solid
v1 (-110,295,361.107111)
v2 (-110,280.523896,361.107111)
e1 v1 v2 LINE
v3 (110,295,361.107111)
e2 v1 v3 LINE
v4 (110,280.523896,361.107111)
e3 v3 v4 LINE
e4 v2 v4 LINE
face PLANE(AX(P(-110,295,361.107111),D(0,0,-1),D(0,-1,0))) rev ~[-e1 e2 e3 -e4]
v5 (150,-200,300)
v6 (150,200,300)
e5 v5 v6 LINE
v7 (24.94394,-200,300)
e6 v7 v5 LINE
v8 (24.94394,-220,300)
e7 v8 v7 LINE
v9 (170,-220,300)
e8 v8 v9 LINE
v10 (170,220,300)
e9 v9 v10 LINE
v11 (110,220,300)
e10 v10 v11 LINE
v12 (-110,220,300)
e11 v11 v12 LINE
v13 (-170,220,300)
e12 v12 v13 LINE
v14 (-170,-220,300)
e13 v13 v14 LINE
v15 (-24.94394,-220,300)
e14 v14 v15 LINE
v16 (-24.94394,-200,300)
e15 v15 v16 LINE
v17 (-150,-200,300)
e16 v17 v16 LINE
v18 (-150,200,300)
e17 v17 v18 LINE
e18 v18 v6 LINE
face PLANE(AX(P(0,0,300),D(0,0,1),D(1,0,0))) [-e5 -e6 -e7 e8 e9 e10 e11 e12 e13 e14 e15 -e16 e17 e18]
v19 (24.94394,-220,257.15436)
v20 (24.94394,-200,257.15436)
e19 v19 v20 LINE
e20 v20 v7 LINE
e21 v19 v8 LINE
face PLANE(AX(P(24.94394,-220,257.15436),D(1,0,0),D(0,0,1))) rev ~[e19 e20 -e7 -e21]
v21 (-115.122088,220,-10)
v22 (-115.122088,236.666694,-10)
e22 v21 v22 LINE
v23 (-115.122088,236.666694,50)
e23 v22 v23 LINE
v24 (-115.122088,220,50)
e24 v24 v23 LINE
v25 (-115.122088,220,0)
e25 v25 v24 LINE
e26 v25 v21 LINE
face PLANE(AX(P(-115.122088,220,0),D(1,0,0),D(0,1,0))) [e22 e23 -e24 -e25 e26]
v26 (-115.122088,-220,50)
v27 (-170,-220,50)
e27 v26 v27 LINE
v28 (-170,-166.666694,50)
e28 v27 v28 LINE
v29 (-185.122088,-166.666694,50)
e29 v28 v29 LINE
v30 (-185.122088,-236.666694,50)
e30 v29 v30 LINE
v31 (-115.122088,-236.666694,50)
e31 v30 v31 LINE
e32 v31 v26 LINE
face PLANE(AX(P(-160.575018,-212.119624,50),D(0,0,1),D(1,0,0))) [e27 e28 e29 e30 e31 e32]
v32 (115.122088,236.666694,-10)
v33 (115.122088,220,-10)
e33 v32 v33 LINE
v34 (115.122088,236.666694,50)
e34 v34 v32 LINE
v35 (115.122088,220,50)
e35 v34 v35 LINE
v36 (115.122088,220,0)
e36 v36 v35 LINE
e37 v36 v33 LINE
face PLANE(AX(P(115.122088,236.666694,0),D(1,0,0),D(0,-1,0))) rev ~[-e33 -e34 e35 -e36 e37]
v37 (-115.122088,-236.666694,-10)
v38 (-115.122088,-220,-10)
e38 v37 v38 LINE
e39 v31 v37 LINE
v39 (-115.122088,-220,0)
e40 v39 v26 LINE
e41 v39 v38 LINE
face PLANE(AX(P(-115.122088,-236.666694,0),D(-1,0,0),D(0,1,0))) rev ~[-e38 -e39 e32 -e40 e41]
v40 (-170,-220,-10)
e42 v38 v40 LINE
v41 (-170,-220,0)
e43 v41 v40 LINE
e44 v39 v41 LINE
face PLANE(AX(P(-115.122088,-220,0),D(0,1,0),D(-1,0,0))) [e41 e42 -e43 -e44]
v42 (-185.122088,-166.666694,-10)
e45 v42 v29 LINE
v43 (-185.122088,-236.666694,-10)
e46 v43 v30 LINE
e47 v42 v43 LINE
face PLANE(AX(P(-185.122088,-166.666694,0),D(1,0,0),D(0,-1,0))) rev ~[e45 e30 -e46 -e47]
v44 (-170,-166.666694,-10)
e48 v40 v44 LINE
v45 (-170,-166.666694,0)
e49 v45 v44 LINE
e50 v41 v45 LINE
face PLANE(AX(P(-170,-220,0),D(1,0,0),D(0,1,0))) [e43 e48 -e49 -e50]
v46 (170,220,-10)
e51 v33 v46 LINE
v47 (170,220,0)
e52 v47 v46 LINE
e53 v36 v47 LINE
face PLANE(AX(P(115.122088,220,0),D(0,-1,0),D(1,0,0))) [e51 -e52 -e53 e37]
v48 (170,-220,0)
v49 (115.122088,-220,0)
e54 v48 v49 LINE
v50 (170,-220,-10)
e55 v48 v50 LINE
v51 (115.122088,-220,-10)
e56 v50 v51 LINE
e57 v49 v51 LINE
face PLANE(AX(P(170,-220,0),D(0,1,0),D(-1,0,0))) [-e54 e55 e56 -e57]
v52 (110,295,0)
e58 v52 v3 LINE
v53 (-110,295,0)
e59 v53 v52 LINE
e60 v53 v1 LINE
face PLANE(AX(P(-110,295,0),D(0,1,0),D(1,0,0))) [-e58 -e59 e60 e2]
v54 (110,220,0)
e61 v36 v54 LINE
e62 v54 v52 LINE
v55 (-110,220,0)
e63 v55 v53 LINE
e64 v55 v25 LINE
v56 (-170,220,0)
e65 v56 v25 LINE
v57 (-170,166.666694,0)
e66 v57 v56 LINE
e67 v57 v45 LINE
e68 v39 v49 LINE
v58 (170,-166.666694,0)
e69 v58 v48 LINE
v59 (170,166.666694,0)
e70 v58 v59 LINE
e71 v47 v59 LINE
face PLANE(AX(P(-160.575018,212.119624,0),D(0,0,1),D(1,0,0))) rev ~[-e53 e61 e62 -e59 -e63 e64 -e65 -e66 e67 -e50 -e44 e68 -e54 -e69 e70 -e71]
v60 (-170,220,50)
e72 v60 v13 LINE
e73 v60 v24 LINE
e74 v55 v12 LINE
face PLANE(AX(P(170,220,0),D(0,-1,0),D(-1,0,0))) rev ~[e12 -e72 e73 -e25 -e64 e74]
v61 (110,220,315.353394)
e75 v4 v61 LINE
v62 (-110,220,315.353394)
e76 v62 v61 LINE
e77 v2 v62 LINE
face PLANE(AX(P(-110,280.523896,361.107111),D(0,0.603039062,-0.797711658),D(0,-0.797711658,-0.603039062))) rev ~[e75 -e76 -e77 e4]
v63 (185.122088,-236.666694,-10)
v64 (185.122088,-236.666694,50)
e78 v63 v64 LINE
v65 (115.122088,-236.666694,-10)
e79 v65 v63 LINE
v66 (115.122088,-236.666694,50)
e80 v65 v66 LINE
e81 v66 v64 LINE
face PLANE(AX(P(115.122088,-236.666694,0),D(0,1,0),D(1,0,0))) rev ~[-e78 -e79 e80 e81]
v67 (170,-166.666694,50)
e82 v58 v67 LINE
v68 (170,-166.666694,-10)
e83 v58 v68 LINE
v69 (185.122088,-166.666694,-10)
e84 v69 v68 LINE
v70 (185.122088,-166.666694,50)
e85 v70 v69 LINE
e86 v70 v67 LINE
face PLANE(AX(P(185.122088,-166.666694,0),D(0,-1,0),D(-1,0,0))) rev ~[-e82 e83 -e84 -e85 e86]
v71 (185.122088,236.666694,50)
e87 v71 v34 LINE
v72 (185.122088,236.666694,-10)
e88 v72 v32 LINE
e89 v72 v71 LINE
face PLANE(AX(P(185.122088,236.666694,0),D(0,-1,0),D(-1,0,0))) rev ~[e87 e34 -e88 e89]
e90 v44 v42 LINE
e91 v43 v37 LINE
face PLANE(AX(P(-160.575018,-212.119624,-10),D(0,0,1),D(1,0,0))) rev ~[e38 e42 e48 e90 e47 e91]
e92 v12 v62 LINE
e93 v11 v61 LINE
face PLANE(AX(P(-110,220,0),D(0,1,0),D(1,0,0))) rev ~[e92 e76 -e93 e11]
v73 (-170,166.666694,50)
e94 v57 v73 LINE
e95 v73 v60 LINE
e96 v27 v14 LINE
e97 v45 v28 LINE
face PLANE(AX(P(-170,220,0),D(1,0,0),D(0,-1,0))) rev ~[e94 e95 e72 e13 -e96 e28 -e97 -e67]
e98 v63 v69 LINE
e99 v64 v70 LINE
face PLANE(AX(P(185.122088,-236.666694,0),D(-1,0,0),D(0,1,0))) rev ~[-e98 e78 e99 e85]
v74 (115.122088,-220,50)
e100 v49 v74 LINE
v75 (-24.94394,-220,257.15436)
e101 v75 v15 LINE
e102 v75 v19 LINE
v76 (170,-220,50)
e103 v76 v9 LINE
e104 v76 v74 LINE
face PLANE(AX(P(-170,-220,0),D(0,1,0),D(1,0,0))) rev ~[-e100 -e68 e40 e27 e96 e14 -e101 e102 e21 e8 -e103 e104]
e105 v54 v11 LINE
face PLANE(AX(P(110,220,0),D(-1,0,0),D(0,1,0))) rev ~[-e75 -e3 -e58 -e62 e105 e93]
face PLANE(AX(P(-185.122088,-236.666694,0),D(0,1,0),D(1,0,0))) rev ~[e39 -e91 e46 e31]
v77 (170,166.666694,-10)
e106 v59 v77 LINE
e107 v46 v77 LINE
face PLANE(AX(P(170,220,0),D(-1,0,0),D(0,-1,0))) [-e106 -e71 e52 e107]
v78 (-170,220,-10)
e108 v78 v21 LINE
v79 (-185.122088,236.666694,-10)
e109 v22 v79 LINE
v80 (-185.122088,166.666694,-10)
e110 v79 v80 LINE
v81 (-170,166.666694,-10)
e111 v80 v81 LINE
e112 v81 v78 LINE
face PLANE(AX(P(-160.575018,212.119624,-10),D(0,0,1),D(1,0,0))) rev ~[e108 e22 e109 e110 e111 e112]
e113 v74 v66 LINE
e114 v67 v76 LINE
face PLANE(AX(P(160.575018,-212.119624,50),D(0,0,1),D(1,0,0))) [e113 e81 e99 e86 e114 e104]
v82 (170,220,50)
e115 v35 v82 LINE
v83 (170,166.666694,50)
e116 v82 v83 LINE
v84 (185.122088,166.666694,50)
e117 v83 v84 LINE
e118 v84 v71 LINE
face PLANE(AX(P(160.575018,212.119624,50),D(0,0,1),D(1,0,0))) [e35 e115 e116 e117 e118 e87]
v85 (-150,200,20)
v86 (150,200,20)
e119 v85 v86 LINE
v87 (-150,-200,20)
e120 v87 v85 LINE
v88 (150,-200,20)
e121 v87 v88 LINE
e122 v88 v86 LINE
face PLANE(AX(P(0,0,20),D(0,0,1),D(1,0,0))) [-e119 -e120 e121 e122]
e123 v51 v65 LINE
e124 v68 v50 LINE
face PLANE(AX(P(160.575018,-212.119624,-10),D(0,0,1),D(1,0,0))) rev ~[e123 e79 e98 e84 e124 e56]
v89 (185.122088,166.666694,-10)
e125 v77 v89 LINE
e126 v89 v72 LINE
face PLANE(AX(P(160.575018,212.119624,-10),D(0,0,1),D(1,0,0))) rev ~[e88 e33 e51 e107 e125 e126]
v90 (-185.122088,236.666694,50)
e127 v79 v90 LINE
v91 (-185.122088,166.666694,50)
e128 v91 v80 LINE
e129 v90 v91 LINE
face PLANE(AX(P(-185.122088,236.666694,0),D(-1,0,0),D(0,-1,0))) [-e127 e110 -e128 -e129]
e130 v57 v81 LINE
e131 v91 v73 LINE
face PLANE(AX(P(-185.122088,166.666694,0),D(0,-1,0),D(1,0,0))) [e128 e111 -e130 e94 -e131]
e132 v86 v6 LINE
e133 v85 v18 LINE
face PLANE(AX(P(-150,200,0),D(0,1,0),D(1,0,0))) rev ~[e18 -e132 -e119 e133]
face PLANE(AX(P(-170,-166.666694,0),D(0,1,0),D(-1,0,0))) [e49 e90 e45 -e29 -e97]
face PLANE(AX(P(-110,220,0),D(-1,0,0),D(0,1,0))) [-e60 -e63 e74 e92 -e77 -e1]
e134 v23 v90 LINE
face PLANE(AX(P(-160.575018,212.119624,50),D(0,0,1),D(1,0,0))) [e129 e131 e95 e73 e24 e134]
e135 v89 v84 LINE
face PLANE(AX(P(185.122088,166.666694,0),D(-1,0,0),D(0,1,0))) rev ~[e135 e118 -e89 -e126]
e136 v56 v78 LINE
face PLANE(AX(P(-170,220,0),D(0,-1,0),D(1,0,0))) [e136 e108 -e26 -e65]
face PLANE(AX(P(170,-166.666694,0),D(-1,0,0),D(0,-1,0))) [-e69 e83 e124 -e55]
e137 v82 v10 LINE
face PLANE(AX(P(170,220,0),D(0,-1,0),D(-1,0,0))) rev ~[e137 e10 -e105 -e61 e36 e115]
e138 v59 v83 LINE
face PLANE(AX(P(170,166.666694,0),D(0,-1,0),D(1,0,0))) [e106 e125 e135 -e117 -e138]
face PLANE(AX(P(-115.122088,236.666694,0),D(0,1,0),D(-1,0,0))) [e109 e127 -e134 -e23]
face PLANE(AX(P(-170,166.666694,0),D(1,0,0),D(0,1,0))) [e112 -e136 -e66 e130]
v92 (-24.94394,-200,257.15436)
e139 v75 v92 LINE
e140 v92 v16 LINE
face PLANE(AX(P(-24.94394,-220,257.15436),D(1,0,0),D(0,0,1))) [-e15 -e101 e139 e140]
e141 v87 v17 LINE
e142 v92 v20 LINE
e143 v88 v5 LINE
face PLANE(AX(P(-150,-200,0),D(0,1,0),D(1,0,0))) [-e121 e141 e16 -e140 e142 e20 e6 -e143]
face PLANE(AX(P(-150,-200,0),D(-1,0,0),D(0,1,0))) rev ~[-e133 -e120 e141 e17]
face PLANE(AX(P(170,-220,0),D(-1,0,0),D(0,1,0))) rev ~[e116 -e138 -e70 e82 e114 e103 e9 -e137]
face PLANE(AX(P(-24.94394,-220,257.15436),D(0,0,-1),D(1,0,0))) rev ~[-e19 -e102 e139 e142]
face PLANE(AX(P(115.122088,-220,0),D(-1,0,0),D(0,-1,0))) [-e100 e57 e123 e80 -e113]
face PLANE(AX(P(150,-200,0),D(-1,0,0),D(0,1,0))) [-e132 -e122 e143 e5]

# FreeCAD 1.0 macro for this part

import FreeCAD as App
import Part
import Sketcher

V = App.Vector
Q = App.Units.Quantity


def add_polygon(sketch, points):
    """Adds a closed chain of lines whose ends are joined by coincident constraints."""
    first, n = sketch.GeometryCount, len(points)
    for a, b in zip(points, points[1:] + points[:1]):
        sketch.addGeometry(Part.LineSegment(App.Vector(*a, 0), App.Vector(*b, 0)), False)
    for i in range(n):
        sketch.addConstraint(Sketcher.Constraint("Coincident", first + i, 2, first + (i + 1) % n, 1))

doc = App.newDocument("Part")
body = doc.addObject("PartDesign::Body", "Body")

sketch1 = body.newObject("Sketcher::SketchObject", "Sketch")
sketch1.AttachmentSupport = (doc.getObject("XY_Plane"), [""])
sketch1.MapMode = "FlatFace"
add_polygon(sketch1, [(170, 220), (-170, 220), (-170, -220), (170, -220)])
add_polygon(sketch1, [(150, -200), (-150, -200), (-150, 200), (150, 200)])
sketch1.addConstraint([
    Sketcher.Constraint("Horizontal", 0),
    Sketcher.Constraint("Vertical", 1),
    Sketcher.Constraint("Horizontal", 2),
    Sketcher.Constraint("Vertical", 3),
    Sketcher.Constraint("Horizontal", 4),
    Sketcher.Constraint("Vertical", 5),
    Sketcher.Constraint("Horizontal", 6),
    Sketcher.Constraint("Vertical", 7),
    Sketcher.Constraint("Symmetric", 0, 2, 2, 2, -1, 1),
    Sketcher.Constraint("Symmetric", 4, 2, 6, 2, -1, 1),
    Sketcher.Constraint("DistanceX", 0, 2, 0, 1, Q("340 mm")),
    Sketcher.Constraint("DistanceX", 4, 2, 4, 1, Q("300 mm")),
    Sketcher.Constraint("DistanceY", 1, 2, 1, 1, Q("440 mm")),
    Sketcher.Constraint("DistanceY", 5, 1, 5, 2, Q("400 mm")),
])
pad1 = body.newObject("PartDesign::Pad", "Pad")
pad1.Profile = sketch1
pad1.Length = 300

sketch2 = body.newObject("Sketcher::SketchObject", "Sketch001")
sketch2.AttachmentSupport = (doc.getObject("XY_Plane"), [""])
sketch2.MapMode = "FlatFace"
add_polygon(sketch2, [(-110, 295), (-110, 220), (110, 220), (110, 295)])
sketch2.addConstraint([
    Sketcher.Constraint("Vertical", 0),
    Sketcher.Constraint("Horizontal", 1),
    Sketcher.Constraint("Vertical", 2),
    Sketcher.Constraint("Horizontal", 3),
    Sketcher.Constraint("DistanceX", 1, 1, 1, 2, Q("220 mm")),
    Sketcher.Constraint("DistanceY", 0, 2, 0, 1, Q("75 mm")),
    Sketcher.Constraint("DistanceX", 0, 2, -1, 1, Q("110 mm")),
    Sketcher.Constraint("DistanceY", -1, 1, 0, 2, Q("220 mm")),
])
pad2 = body.newObject("PartDesign::Pad", "Pad001")
pad2.Profile = sketch2
pad2.Length = 400

sketch3 = body.newObject("Sketcher::SketchObject", "Sketch002")
sketch3.AttachmentSupport = (doc.getObject("XY_Plane"), [""])
sketch3.MapMode = "FlatFace"
add_polygon(sketch3, [(-150, 200), (-150, -200), (150, -200), (150, 200)])
sketch3.addConstraint([
    Sketcher.Constraint("Vertical", 0),
    Sketcher.Constraint("Horizontal", 1),
    Sketcher.Constraint("Vertical", 2),
    Sketcher.Constraint("Horizontal", 3),
    Sketcher.Constraint("Symmetric", 0, 2, 2, 2, -1, 1),
    Sketcher.Constraint("DistanceX", 1, 1, 1, 2, Q("300 mm")),
    Sketcher.Constraint("DistanceY", 0, 2, 0, 1, Q("400 mm")),
])
pocket1 = body.newObject("PartDesign::Pocket", "Pocket")
pocket1.Profile = sketch3
pocket1.Length = 300
pocket1.Reversed = True

sketch4 = body.newObject("Sketcher::SketchObject", "Sketch003")
sketch4.AttachmentSupport = (doc.getObject("XY_Plane"), [""])
sketch4.MapMode = "FlatFace"
add_polygon(sketch4, [(-150, 200), (-150, -200), (150, -200), (150, 200)])
sketch4.addConstraint([
    Sketcher.Constraint("Vertical", 0),
    Sketcher.Constraint("Horizontal", 1),
    Sketcher.Constraint("Vertical", 2),
    Sketcher.Constraint("Horizontal", 3),
    Sketcher.Constraint("Symmetric", 0, 2, 2, 2, -1, 1),
    Sketcher.Constraint("DistanceX", 1, 1, 1, 2, Q("300 mm")),
    Sketcher.Constraint("DistanceY", 0, 2, 0, 1, Q("400 mm")),
])
pad3 = body.newObject("PartDesign::Pad", "Pad002")
pad3.Profile = sketch4
pad3.Length = 20

sketch5 = body.newObject("Sketcher::SketchObject", "Sketch004")
sketch5.AttachmentSupport = (doc.getObject("YZ_Plane"), [""])
sketch5.MapMode = "FlatFace"
sketch5.AttachmentOffset = App.Placement(V(0, 0, -110), App.Rotation())
add_polygon(sketch5, [(295, 400), (295, 361.107111), (280.523896, 361.107111), (220, 315.353394), (220, 400)])
sketch5.addConstraint([
    Sketcher.Constraint("Vertical", 0),
    Sketcher.Constraint("Horizontal", 1),
    Sketcher.Constraint("Vertical", 3),
    Sketcher.Constraint("Horizontal", 4),
    Sketcher.Constraint("DistanceX", 4, 1, 4, 2, Q("75 mm")),
    Sketcher.Constraint("DistanceX", -1, 1, 0, 2, Q("295 mm")),
    Sketcher.Constraint("DistanceY", -1, 1, 3, 2, Q("400 mm")),
    Sketcher.Constraint("DistanceY", 0, 2, 0, 1, Q("38.892889 mm")),
    Sketcher.Constraint("DistanceX", 1, 2, 1, 1, Q("14.476104 mm")),
    Sketcher.Constraint("DistanceY", 3, 1, 3, 2, Q("84.646606 mm")),
])
pocket2 = body.newObject("PartDesign::Pocket", "Pocket001")
pocket2.Profile = sketch5
pocket2.Type = "ThroughAll"
pocket2.Reversed = True

sketch6 = body.newObject("Sketcher::SketchObject", "Sketch005")
sketch6.AttachmentSupport = (doc.getObject("XZ_Plane"), [""])
sketch6.MapMode = "FlatFace"
sketch6.AttachmentOffset = App.Placement(V(0, 0, 220), App.Rotation())
add_polygon(sketch6, [(-24.94394, 300), (-24.94394, 257.15436), (24.94394, 257.15436), (24.94394, 300)])
sketch6.addConstraint([
    Sketcher.Constraint("Vertical", 0),
    Sketcher.Constraint("Horizontal", 1),
    Sketcher.Constraint("Vertical", 2),
    Sketcher.Constraint("Horizontal", 3),
    Sketcher.Constraint("DistanceY", -1, 1, 2, 2, Q("300 mm")),
    Sketcher.Constraint("DistanceX", 1, 1, 1, 2, Q("49.88788 mm")),
    Sketcher.Constraint("DistanceY", 0, 2, 0, 1, Q("42.84564 mm")),
    Sketcher.Constraint("DistanceX", 0, 2, -1, 1, Q("24.94394 mm")),
])
pocket3 = body.newObject("PartDesign::Pocket", "Pocket002")
pocket3.Profile = sketch6
pocket3.Length = 20

sketch7 = body.newObject("Sketcher::SketchObject", "Sketch006")
sketch7.AttachmentSupport = (doc.getObject("XY_Plane"), [""])
sketch7.MapMode = "FlatFace"
add_polygon(sketch7, [(-170, 220), (-115.122088, 220), (-115.122088, 236.666694), (-185.122088, 236.666694), (-185.122088, 166.666694), (-170, 166.666694)])
add_polygon(sketch7, [(-115.122088, -236.666694), (-115.122088, -220), (-170, -220), (-170, -166.666694), (-185.122088, -166.666694), (-185.122088, -236.666694)])
add_polygon(sketch7, [(185.122088, -166.666694), (170, -166.666694), (170, -220), (115.122088, -220), (115.122088, -236.666694), (185.122088, -236.666694)])
add_polygon(sketch7, [(115.122088, 220), (170, 220), (170, 166.666694), (185.122088, 166.666694), (185.122088, 236.666694), (115.122088, 236.666694)])
sketch7.addConstraint([
    Sketcher.Constraint("Horizontal", 0),
    Sketcher.Constraint("Vertical", 1),
    Sketcher.Constraint("Horizontal", 2),
    Sketcher.Constraint("Vertical", 3),
    Sketcher.Constraint("Horizontal", 4),
    Sketcher.Constraint("Vertical", 5),
    Sketcher.Constraint("Vertical", 6),
    Sketcher.Constraint("Horizontal", 7),
    Sketcher.Constraint("Vertical", 8),
    Sketcher.Constraint("Horizontal", 9),
    Sketcher.Constraint("Vertical", 10),
    Sketcher.Constraint("Horizontal", 11),
    Sketcher.Constraint("Horizontal", 12),
    Sketcher.Constraint("Vertical", 13),
    Sketcher.Constraint("Horizontal", 14),
    Sketcher.Constraint("Vertical", 15),
    Sketcher.Constraint("Horizontal", 16),
    Sketcher.Constraint("Vertical", 17),
    Sketcher.Constraint("Horizontal", 18),
    Sketcher.Constraint("Vertical", 19),
    Sketcher.Constraint("Horizontal", 20),
    Sketcher.Constraint("Vertical", 21),
    Sketcher.Constraint("Horizontal", 22),
    Sketcher.Constraint("Vertical", 23),
    Sketcher.Constraint("Symmetric", 4, 2, 12, 2, -1, 1),
    Sketcher.Constraint("Symmetric", 0, 2, 14, 2, -1, 1),
    Sketcher.Constraint("Symmetric", 2, 2, 16, 2, -1, 1),
    Sketcher.Constraint("Symmetric", 7, 2, 18, 2, -1, 1),
    Sketcher.Constraint("Symmetric", 9, 2, 20, 2, -1, 1),
    Sketcher.Constraint("Symmetric", 11, 2, 22, 2, -1, 1),
    Sketcher.Constraint("Symmetric", 8, 2, 12, 2, -2),
    Sketcher.Constraint("Symmetric", 6, 2, 14, 2, -2),
    Sketcher.Constraint("Symmetric", 10, 2, 16, 2, -2),
    Sketcher.Constraint("Equal", 22, 3),
    Sketcher.Constraint("DistanceX", 2, 2, 2, 1, Q("70 mm")),
    Sketcher.Constraint("DistanceY", -1, 1, 0, 2, Q("220 mm")),
    Sketcher.Constraint("DistanceX", 4, 2, -1, 1, Q("170 mm")),
    Sketcher.Constraint("DistanceX", 0, 1, 0, 2, Q("54.877912 mm")),
    Sketcher.Constraint("DistanceY", 1, 1, 1, 2, Q("16.666694 mm")),
])
pad4 = body.newObject("PartDesign::Pad", "Pad003")
pad4.Profile = sketch7
pad4.Type = "TwoLengths"
pad4.Length = 50
pad4.Length2 = 10

doc.recompute()
